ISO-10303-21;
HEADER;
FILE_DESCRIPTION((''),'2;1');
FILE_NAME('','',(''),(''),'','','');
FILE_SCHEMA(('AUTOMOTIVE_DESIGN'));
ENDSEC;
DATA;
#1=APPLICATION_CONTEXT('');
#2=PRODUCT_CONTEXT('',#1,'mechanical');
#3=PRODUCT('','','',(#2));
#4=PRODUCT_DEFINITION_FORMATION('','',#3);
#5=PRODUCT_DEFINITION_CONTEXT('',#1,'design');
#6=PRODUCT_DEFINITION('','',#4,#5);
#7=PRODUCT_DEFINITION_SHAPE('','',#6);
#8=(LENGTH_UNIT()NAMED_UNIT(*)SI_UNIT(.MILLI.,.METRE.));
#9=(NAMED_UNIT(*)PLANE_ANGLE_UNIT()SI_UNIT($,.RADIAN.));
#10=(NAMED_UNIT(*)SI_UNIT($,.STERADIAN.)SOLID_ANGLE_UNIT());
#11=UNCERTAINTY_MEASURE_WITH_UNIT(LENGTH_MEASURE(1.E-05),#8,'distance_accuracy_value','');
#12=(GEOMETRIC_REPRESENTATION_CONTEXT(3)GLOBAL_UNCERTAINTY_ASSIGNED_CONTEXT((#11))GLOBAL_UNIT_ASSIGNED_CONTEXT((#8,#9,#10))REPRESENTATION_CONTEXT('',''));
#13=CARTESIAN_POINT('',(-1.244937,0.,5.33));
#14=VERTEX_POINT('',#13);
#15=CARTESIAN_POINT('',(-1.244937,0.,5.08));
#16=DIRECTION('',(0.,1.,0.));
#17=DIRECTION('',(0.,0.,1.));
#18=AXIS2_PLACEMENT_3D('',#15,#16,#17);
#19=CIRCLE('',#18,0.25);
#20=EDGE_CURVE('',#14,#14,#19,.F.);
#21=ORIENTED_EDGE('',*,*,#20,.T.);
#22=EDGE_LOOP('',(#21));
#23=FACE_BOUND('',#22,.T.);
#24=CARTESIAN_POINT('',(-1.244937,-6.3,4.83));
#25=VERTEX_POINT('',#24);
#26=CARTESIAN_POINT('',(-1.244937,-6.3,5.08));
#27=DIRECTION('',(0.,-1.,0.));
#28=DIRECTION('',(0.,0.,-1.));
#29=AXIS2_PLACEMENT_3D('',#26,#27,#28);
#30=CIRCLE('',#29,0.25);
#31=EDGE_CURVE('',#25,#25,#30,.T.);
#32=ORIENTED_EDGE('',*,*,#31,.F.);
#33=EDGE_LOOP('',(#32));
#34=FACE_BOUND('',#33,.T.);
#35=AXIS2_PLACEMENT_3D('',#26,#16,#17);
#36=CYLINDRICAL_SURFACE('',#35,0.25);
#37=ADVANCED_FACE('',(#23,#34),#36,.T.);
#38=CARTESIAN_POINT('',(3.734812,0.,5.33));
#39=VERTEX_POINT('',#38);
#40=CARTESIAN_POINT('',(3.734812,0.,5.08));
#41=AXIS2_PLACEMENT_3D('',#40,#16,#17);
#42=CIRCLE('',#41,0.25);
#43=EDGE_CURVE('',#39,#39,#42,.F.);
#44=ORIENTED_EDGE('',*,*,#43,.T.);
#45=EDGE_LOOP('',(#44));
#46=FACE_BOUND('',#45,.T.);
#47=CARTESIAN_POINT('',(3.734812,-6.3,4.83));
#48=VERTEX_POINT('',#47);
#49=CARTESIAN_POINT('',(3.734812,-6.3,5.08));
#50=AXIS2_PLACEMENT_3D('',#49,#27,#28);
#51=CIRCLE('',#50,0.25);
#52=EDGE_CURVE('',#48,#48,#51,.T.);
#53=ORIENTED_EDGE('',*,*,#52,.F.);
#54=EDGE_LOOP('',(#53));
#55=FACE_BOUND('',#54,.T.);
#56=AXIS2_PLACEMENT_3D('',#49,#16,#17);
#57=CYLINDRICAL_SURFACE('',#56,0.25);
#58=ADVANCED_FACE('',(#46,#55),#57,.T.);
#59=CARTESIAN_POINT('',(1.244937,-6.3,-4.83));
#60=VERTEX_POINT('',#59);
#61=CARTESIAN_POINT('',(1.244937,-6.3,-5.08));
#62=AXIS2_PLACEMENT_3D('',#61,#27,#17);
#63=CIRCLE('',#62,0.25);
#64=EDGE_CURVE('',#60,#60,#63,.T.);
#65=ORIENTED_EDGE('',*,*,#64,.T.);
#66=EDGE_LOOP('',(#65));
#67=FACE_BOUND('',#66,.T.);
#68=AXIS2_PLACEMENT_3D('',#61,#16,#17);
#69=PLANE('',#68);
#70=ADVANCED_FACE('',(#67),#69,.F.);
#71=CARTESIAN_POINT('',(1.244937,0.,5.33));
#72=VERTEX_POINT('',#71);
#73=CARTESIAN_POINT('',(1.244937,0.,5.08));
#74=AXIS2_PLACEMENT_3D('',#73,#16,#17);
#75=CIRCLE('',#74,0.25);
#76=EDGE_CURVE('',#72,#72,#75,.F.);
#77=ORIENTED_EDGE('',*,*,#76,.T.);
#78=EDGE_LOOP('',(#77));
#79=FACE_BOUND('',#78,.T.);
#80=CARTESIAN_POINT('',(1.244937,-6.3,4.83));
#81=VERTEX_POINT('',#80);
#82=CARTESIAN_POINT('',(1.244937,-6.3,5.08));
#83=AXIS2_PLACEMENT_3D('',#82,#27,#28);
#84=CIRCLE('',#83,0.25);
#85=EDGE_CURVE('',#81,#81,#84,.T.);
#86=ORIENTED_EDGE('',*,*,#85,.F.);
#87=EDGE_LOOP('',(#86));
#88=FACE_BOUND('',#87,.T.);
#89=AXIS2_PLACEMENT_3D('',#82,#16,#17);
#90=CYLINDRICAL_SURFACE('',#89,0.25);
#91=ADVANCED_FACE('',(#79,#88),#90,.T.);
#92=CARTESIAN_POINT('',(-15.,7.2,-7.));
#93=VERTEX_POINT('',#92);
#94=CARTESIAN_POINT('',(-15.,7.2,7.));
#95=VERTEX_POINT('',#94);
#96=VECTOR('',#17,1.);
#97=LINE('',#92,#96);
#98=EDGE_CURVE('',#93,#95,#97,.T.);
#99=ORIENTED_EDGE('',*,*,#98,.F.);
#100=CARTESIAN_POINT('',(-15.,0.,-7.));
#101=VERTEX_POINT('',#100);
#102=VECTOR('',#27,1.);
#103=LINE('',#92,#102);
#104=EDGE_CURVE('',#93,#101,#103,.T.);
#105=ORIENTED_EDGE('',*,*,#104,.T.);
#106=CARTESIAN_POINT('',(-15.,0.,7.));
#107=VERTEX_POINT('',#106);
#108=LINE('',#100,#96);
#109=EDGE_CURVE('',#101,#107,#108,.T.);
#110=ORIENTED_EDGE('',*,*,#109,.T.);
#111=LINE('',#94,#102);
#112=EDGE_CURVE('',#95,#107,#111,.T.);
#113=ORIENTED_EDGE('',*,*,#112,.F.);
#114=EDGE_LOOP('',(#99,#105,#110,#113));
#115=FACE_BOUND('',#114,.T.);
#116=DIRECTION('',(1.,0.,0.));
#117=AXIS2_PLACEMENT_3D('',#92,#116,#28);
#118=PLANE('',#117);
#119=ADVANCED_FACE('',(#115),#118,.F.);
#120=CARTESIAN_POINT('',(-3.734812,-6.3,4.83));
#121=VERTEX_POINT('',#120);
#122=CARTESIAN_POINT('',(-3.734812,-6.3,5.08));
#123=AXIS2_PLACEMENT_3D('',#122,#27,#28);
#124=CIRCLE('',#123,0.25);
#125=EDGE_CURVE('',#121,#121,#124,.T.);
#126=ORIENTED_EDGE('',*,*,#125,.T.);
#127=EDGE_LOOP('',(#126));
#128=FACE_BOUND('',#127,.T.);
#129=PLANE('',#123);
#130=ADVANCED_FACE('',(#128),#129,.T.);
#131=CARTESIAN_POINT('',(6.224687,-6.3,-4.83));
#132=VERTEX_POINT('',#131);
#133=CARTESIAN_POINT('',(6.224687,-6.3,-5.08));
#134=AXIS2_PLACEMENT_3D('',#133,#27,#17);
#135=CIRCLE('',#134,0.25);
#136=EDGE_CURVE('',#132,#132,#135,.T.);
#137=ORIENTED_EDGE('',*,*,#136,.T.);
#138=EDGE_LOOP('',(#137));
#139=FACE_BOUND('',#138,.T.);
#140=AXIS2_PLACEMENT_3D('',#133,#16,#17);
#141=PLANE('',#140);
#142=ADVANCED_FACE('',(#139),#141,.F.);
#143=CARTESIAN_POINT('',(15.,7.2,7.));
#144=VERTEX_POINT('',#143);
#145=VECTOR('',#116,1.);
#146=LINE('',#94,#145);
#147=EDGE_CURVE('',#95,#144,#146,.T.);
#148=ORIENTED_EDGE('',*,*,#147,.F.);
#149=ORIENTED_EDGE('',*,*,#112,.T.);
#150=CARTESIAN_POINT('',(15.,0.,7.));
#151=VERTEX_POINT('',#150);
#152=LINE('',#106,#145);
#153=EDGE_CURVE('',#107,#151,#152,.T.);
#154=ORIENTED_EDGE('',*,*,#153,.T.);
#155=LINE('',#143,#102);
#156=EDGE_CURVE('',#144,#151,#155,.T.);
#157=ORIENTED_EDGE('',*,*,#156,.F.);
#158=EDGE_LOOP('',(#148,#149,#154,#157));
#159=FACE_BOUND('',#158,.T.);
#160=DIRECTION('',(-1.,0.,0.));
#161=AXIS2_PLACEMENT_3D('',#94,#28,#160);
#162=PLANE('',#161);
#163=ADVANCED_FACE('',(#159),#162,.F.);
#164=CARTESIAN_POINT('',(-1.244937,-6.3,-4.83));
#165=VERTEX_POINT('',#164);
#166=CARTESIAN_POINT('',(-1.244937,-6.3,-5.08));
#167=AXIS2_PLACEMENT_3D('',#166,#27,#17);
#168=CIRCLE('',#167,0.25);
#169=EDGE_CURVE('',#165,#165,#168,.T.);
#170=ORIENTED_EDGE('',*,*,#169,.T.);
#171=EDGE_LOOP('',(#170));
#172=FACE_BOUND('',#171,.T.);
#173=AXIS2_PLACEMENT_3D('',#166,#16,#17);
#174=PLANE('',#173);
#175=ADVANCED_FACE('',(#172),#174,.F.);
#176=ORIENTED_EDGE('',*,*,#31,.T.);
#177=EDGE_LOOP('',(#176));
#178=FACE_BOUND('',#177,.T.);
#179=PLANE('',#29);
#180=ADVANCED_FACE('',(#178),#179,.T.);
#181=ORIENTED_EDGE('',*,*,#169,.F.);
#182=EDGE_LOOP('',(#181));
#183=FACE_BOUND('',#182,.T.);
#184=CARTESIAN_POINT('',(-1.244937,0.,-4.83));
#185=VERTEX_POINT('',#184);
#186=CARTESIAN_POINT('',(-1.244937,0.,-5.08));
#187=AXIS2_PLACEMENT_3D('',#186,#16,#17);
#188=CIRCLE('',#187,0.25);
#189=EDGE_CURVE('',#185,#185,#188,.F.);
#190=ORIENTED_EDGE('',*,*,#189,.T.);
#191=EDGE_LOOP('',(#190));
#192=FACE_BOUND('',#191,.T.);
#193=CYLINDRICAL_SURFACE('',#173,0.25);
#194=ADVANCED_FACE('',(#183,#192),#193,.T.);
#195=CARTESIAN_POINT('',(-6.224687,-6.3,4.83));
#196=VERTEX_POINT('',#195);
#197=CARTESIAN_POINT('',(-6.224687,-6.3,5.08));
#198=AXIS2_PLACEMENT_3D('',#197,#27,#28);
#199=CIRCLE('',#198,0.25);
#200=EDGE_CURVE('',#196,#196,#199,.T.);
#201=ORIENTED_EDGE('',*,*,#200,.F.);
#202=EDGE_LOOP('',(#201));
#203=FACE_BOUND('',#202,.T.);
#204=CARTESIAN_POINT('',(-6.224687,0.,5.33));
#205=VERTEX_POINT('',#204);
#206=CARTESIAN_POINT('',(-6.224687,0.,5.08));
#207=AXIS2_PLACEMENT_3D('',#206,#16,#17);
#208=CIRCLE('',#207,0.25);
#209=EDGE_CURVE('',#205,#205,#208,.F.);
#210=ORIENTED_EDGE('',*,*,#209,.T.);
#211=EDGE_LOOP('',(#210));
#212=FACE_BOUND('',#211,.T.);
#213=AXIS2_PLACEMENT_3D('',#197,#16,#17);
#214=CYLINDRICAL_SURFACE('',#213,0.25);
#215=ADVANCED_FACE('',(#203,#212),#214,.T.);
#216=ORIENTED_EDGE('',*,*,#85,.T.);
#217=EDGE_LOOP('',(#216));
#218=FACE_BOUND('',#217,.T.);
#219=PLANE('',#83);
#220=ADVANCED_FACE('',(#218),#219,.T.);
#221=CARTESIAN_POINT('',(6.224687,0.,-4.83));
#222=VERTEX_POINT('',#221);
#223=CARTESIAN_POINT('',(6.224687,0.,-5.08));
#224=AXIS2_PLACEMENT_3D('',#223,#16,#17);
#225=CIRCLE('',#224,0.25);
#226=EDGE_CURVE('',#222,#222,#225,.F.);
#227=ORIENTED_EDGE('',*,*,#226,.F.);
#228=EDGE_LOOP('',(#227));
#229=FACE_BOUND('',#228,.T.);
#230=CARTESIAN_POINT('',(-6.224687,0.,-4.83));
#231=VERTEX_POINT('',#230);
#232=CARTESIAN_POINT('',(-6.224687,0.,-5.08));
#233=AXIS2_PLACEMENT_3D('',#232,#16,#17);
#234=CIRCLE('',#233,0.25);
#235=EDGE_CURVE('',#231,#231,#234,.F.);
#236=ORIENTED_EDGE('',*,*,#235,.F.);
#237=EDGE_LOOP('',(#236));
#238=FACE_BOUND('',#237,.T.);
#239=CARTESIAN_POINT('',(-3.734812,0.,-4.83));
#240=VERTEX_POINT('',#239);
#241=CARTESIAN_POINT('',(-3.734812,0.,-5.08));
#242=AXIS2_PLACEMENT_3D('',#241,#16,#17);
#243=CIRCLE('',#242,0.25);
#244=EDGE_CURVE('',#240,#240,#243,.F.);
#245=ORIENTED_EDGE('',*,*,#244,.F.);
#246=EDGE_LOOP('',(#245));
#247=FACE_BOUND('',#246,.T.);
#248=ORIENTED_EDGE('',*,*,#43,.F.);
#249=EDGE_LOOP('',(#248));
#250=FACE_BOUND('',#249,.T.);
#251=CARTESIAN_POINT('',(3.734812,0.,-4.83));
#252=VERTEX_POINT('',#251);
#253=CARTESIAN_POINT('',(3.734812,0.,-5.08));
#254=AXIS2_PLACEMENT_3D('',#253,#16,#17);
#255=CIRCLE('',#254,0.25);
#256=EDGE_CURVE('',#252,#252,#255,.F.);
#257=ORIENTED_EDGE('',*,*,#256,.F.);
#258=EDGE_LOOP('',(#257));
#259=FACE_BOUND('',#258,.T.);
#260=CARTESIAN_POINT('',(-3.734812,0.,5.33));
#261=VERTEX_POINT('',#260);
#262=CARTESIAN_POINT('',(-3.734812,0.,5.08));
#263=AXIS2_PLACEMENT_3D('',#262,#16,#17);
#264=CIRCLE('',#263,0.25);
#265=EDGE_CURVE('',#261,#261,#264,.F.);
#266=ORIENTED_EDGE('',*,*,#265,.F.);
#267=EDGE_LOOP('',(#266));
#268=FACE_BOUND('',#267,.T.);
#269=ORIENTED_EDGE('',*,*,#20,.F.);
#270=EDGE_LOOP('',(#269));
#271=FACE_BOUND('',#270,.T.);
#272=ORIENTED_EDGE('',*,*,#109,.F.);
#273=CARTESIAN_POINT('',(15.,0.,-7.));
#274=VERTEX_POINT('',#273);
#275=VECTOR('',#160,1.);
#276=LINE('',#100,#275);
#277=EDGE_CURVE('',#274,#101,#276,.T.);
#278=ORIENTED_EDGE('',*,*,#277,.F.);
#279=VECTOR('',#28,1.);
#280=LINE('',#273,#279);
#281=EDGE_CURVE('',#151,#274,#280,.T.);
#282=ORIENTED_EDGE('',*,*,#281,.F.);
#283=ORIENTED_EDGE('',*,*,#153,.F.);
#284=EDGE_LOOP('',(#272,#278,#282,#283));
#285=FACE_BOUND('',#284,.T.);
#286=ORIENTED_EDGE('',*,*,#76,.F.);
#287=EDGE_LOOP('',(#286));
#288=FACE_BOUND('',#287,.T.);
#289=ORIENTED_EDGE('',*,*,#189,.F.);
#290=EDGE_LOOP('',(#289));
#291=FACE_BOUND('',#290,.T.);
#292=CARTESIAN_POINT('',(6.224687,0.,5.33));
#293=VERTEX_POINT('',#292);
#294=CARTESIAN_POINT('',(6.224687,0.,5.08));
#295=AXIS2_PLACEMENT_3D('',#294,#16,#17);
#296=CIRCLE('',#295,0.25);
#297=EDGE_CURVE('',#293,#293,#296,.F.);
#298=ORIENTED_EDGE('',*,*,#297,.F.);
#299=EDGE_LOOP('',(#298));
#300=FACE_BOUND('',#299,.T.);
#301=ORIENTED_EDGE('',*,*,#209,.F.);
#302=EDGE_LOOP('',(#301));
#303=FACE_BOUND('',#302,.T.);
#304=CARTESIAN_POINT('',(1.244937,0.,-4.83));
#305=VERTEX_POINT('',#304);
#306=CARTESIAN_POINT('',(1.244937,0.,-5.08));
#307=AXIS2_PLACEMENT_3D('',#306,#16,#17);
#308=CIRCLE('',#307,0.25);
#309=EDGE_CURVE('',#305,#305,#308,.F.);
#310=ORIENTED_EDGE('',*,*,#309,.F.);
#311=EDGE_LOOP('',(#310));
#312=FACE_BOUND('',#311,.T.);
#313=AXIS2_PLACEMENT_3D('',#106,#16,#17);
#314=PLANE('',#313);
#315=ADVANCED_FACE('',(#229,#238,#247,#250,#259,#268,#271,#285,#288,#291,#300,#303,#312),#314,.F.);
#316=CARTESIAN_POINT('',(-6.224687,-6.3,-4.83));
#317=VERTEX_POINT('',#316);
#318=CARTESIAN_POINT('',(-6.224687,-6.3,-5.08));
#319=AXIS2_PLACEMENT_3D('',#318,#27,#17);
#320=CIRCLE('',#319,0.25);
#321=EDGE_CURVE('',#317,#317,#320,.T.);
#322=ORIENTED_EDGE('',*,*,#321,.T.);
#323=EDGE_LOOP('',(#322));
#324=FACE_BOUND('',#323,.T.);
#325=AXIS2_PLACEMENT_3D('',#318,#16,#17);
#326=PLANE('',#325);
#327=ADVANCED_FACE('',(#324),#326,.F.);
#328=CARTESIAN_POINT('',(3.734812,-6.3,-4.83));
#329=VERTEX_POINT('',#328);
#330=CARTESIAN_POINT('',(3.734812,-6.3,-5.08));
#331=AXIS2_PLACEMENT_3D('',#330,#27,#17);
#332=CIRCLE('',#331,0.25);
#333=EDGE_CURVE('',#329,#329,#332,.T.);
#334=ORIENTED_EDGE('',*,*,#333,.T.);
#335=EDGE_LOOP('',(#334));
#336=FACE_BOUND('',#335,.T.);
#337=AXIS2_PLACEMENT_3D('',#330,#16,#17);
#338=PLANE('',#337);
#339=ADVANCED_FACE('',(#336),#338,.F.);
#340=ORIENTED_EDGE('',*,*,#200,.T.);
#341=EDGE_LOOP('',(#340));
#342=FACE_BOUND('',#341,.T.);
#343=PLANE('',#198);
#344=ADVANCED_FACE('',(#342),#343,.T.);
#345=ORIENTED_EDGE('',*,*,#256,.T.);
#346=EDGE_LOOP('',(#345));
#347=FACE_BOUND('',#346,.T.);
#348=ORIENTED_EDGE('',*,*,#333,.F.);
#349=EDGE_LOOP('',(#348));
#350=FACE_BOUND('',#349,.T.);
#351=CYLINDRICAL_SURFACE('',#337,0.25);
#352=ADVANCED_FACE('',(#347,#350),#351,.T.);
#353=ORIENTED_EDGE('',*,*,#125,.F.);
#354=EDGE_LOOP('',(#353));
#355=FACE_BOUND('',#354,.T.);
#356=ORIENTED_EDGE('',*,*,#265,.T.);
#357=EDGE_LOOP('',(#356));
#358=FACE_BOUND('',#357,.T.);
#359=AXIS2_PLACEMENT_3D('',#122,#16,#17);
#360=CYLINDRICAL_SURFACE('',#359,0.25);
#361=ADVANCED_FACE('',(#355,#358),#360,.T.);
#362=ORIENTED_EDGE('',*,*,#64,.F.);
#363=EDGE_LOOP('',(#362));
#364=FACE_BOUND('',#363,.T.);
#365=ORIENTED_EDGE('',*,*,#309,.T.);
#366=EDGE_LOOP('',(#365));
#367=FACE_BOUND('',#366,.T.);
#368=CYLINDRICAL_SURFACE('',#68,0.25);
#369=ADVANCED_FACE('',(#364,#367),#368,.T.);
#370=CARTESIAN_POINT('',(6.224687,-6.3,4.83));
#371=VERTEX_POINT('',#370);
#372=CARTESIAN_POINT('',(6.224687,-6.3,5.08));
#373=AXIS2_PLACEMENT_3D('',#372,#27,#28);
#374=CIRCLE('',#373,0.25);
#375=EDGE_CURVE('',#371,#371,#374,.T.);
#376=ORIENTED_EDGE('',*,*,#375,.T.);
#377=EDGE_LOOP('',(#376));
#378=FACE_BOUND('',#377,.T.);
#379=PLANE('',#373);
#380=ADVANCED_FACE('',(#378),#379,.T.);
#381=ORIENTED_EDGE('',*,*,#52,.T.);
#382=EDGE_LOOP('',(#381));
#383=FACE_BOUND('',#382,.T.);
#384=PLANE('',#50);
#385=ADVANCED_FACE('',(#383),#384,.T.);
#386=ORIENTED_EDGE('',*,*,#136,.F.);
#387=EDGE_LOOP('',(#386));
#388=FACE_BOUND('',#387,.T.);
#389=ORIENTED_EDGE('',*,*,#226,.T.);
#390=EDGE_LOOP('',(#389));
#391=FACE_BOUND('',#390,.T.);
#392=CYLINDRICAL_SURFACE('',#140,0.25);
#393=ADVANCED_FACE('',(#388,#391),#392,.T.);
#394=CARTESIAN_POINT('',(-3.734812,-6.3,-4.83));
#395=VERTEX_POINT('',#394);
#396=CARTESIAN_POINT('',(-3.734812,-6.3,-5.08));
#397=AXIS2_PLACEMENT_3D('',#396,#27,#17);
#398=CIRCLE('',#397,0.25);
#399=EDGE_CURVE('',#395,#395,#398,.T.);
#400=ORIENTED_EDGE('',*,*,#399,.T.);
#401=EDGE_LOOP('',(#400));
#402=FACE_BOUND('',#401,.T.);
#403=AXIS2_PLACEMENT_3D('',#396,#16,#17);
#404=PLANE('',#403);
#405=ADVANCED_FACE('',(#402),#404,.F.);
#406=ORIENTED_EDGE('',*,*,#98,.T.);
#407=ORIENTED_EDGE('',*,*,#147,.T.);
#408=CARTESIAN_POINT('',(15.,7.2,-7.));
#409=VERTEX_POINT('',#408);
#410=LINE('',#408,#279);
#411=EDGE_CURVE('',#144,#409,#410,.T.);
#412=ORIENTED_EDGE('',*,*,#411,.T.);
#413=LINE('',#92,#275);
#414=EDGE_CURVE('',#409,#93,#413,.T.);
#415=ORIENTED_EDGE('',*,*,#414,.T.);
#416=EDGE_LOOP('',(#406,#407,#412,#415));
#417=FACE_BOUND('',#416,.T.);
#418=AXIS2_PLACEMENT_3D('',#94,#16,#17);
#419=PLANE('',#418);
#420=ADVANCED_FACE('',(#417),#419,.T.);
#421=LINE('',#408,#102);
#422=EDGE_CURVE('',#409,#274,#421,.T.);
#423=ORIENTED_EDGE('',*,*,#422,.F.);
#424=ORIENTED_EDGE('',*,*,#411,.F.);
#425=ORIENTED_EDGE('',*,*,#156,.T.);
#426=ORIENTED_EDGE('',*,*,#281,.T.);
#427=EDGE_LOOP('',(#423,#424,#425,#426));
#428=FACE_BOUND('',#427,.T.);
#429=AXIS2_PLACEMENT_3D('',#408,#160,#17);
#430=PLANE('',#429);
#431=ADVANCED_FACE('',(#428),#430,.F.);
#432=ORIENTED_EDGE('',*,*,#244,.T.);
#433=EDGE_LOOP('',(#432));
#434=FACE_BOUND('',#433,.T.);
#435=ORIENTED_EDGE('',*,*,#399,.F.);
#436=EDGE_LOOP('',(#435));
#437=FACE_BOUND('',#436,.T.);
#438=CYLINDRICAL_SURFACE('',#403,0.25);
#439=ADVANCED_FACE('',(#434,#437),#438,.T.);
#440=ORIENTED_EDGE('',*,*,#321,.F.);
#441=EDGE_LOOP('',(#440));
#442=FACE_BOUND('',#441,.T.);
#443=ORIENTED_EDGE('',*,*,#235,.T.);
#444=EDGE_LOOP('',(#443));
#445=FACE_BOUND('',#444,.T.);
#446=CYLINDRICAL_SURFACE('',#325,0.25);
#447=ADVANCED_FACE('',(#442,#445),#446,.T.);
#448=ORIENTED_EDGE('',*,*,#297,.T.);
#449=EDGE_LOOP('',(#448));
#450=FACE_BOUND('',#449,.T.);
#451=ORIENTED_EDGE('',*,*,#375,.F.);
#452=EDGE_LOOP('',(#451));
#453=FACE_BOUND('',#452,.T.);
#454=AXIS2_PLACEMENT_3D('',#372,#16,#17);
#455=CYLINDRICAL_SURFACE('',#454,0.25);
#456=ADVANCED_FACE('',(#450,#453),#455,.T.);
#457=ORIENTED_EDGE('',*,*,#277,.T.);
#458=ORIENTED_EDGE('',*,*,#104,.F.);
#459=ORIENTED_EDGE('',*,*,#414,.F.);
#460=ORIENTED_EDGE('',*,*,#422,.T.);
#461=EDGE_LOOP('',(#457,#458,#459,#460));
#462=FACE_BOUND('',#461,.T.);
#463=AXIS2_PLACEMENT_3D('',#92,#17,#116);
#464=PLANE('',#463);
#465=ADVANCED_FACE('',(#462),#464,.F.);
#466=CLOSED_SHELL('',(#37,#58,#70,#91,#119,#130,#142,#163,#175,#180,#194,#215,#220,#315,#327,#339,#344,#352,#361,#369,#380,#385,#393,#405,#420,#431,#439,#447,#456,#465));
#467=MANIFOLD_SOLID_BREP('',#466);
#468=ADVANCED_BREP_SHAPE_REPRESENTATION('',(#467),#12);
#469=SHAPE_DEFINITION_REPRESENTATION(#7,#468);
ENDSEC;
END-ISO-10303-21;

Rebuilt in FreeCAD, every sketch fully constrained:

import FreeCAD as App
import Part
import Sketcher
from FreeCAD import Vector


def add_polygon(sketch, points):
    """Adds a closed chain of lines whose ends are joined by coincident constraints."""
    first, n = sketch.GeometryCount, len(points)
    for a, b in zip(points, points[1:] + points[:1]):
        sketch.addGeometry(Part.LineSegment(App.Vector(*a, 0), App.Vector(*b, 0)), False)
    for i in range(n):
        sketch.addConstraint(Sketcher.Constraint("Coincident", first + i, 2, first + (i + 1) % n, 1))

doc = App.newDocument("Part")
body = doc.addObject("PartDesign::Body", "Body")

sketch1 = body.newObject("Sketcher::SketchObject", "Sketch")
sketch1.AttachmentSupport = (doc.getObject("XZ_Plane"), [""])
sketch1.MapMode = "FlatFace"
add_polygon(sketch1, [(-15, -7), (-15, 7), (15, 7), (15, -7)])
sketch1.addConstraint(Sketcher.Constraint("Vertical", 0))
sketch1.addConstraint(Sketcher.Constraint("Horizontal", 1))
sketch1.addConstraint(Sketcher.Constraint("Vertical", 2))
sketch1.addConstraint(Sketcher.Constraint("Horizontal", 3))
sketch1.addConstraint(Sketcher.Constraint("Symmetric", 0, 2, 2, 2, -1, 1))
sketch1.addConstraint(Sketcher.Constraint("DistanceX", 1, 1, 1, 2, 30.0))
sketch1.addConstraint(Sketcher.Constraint("DistanceY", 0, 1, 0, 2, 14.0))
pad1 = body.newObject("PartDesign::Pad", "Pad")
pad1.Profile = sketch1
pad1.Length = 7.2
pad1.Reversed = True

sketch2 = body.newObject("Sketcher::SketchObject", "Sketch001")
sketch2.AttachmentSupport = (doc.getObject("XZ_Plane"), [""])
sketch2.MapMode = "FlatFace"
sketch2.addGeometry(Part.Circle(Vector(6.22, 5.08, 0), Vector(0, 0, 1), 0.25), False)
sketch2.addGeometry(Part.Circle(Vector(3.73, 5.08, 0), Vector(0, 0, 1), 0.25), False)
sketch2.addGeometry(Part.Circle(Vector(1.24, 5.08, 0), Vector(0, 0, 1), 0.25), False)
sketch2.addGeometry(Part.Circle(Vector(-1.24, 5.08, 0), Vector(0, 0, 1), 0.25), False)
sketch2.addGeometry(Part.Circle(Vector(-3.73, 5.08, 0), Vector(0, 0, 1), 0.25), False)
sketch2.addGeometry(Part.Circle(Vector(-6.22, 5.08, 0), Vector(0, 0, 1), 0.25), False)
sketch2.addGeometry(Part.Circle(Vector(-6.22, -5.08, 0), Vector(0, 0, 1), 0.25), False)
sketch2.addGeometry(Part.Circle(Vector(-3.73, -5.08, 0), Vector(0, 0, 1), 0.25), False)
sketch2.addGeometry(Part.Circle(Vector(-1.24, -5.08, 0), Vector(0, 0, 1), 0.25), False)
sketch2.addGeometry(Part.Circle(Vector(1.24, -5.08, 0), Vector(0, 0, 1), 0.25), False)
sketch2.addGeometry(Part.Circle(Vector(3.73, -5.08, 0), Vector(0, 0, 1), 0.25), False)
sketch2.addGeometry(Part.Circle(Vector(6.22, -5.08, 0), Vector(0, 0, 1), 0.25), False)
sketch2.addConstraint(Sketcher.Constraint("Equal", 0, 1))
sketch2.addConstraint(Sketcher.Constraint("Equal", 1, 2))
sketch2.addConstraint(Sketcher.Constraint("Equal", 2, 3))
sketch2.addConstraint(Sketcher.Constraint("Equal", 3, 4))
sketch2.addConstraint(Sketcher.Constraint("Equal", 4, 5))
sketch2.addConstraint(Sketcher.Constraint("Equal", 5, 6))
sketch2.addConstraint(Sketcher.Constraint("Equal", 6, 7))
sketch2.addConstraint(Sketcher.Constraint("Equal", 7, 8))
sketch2.addConstraint(Sketcher.Constraint("Equal", 8, 9))
sketch2.addConstraint(Sketcher.Constraint("Equal", 9, 10))
sketch2.addConstraint(Sketcher.Constraint("Equal", 10, 11))
sketch2.addConstraint(Sketcher.Constraint("Symmetric", 0, 3, 6, 3, -1, 1))
sketch2.addConstraint(Sketcher.Constraint("Symmetric", 1, 3, 7, 3, -1, 1))
sketch2.addConstraint(Sketcher.Constraint("Symmetric", 2, 3, 8, 3, -1, 1))
sketch2.addConstraint(Sketcher.Constraint("Symmetric", 3, 3, 9, 3, -1, 1))
sketch2.addConstraint(Sketcher.Constraint("Symmetric", 4, 3, 10, 3, -1, 1))
sketch2.addConstraint(Sketcher.Constraint("Symmetric", 5, 3, 11, 3, -1, 1))
sketch2.addConstraint(Sketcher.Constraint("Symmetric", 2, 3, 3, 3, -2))
sketch2.addConstraint(Sketcher.Constraint("Symmetric", 1, 3, 4, 3, -2))
sketch2.addConstraint(Sketcher.Constraint("Symmetric", 0, 3, 5, 3, -2))
sketch2.addConstraint(Sketcher.Constraint("Horizontal", 0, 3, 1, 3))
sketch2.addConstraint(Sketcher.Constraint("Horizontal", 1, 3, 2, 3))
sketch2.addConstraint(Sketcher.Constraint("Diameter", 0, 0.5))
sketch2.addConstraint(Sketcher.Constraint("DistanceY", -1, 1, 0, 3, 5.08))
sketch2.addConstraint(Sketcher.Constraint("DistanceX", 4, 3, 0, 3, 9.959499))
sketch2.addConstraint(Sketcher.Constraint("DistanceX", -1, 1, 1, 3, 3.734812))
sketch2.addConstraint(Sketcher.Constraint("DistanceX", 2, 3, 0, 3, 4.979749))
pad2 = body.newObject("PartDesign::Pad", "Pad001")
pad2.Profile = sketch2
pad2.Length = 6.3

doc.recompute()
